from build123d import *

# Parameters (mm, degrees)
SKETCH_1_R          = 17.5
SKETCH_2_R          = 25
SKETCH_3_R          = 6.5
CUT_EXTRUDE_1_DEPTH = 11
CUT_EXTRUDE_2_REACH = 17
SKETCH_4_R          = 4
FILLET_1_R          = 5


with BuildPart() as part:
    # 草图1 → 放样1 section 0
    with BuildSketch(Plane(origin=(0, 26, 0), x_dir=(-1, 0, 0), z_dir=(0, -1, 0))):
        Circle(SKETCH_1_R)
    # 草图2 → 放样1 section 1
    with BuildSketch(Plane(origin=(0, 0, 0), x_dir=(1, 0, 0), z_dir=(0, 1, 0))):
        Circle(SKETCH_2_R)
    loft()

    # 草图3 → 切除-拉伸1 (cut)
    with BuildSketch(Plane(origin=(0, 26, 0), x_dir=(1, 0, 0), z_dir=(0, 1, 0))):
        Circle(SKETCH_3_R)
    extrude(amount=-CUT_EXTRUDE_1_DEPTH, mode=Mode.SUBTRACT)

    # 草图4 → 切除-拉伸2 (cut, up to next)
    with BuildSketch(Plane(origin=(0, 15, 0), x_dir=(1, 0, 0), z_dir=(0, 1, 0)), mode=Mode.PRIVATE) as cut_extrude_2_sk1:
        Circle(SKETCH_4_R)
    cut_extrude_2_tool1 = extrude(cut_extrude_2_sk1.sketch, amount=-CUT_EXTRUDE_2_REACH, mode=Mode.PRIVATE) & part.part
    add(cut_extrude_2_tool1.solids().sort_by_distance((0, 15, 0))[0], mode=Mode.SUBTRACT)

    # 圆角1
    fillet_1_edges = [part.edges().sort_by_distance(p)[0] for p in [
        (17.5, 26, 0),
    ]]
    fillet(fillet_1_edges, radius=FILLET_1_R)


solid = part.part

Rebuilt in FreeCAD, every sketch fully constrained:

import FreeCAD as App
import Part
import Sketcher


def edges_at(feature, points):
    """Names of the edges that pass closest to the given points."""
    edges = feature.Shape.Edges
    near = lambda p: min(range(len(edges)), key=lambda i: edges[i].distToShape(Part.Vertex(*p))[0])
    return sorted({f"Edge{near(p) + 1}" for p in points})

doc = App.newDocument("Part")
params = doc.addObject("Spreadsheet::Sheet", "Params")
for row, (alias, value) in enumerate([
    ("sketch1_diameter", "35 mm"),
    ("sketch2_diameter", "50 mm"),
    ("sketch3_diameter", "13 mm"),
    ("pocket1_length", "11 mm"),
    ("sketch4_diameter", "8 mm"),
    ("fillet_radius", "5 mm"),
], start=1):
    params.set(f"A{row}", alias)
    params.set(f"B{row}", "=" + value)
    params.setAlias(f"B{row}", alias)

body = doc.addObject("PartDesign::Body", "Body")

# Sketch on XZ plane
sketch1 = body.newObject("Sketcher::SketchObject", "Sketch")
sketch1.AttachmentSupport = (doc.getObject("XZ_Plane"), [""])
sketch1.MapMode = "FlatFace"
sketch1.AttachmentOffset = App.Placement(App.Vector(0, 0, -26), App.Rotation())
sketch1.addGeometry(Part.Circle(App.Vector(0, 0, 0), App.Vector(0, 0, 1), 18), False)
sketch1.addConstraint(Sketcher.Constraint("Coincident", 0, 3, -1, 1))
sketch1.addConstraint(Sketcher.Constraint("Diameter", 0, 35.0))
sketch1.setExpression("Constraints[1]", "Params.sketch1_diameter")

# Sketch on XZ plane
sketch2 = body.newObject("Sketcher::SketchObject", "Sketch001")
sketch2.AttachmentSupport = (doc.getObject("XZ_Plane"), [""])
sketch2.MapMode = "FlatFace"
sketch2.addGeometry(Part.Circle(App.Vector(0, 0, 0), App.Vector(0, 0, 1), 25), False)
sketch2.addConstraint(Sketcher.Constraint("Coincident", 0, 3, -1, 1))
sketch2.addConstraint(Sketcher.Constraint("Diameter", 0, 50.0))
sketch2.setExpression("Constraints[1]", "Params.sketch2_diameter")

additiveloft = body.newObject("PartDesign::AdditiveLoft", "AdditiveLoft")
additiveloft.Profile = sketch1
additiveloft.Sections = [sketch2]

# Sketch on XZ plane
sketch3 = body.newObject("Sketcher::SketchObject", "Sketch002")
sketch3.AttachmentSupport = (doc.getObject("XZ_Plane"), [""])
sketch3.MapMode = "FlatFace"
sketch3.AttachmentOffset = App.Placement(App.Vector(0, 0, -26), App.Rotation())
sketch3.addGeometry(Part.Circle(App.Vector(0, 0, 0), App.Vector(0, 0, 1), 6), False)
sketch3.addConstraint(Sketcher.Constraint("Coincident", 0, 3, -1, 1))
sketch3.addConstraint(Sketcher.Constraint("Diameter", 0, 13.0))
sketch3.setExpression("Constraints[1]", "Params.sketch3_diameter")
pocket1 = body.newObject("PartDesign::Pocket", "Pocket")
pocket1.Profile = sketch3
pocket1.setExpression("Length", "Params.pocket1_length")
pocket1.Reversed = True

# Sketch on XZ plane
sketch4 = body.newObject("Sketcher::SketchObject", "Sketch003")
sketch4.AttachmentSupport = (doc.getObject("XZ_Plane"), [""])
sketch4.MapMode = "FlatFace"
sketch4.AttachmentOffset = App.Placement(App.Vector(0, 0, -15), App.Rotation())
sketch4.addGeometry(Part.Circle(App.Vector(0, 0, 0), App.Vector(0, 0, 1), 4), False)
sketch4.addConstraint(Sketcher.Constraint("Coincident", 0, 3, -1, 1))
sketch4.addConstraint(Sketcher.Constraint("Diameter", 0, 8.0))
sketch4.setExpression("Constraints[1]", "Params.sketch4_diameter")
pocket2 = body.newObject("PartDesign::Pocket", "Pocket001")
pocket2.Profile = sketch4
pocket2.Type = "UpToFirst"
pocket2.Reversed = True
doc.recompute()

fillet = body.newObject("PartDesign::Fillet", "Fillet")
fillet.Base = (pocket2, edges_at(pocket2, [(17.5, 26, 0)]))
fillet.setExpression("Radius", "Params.fillet_radius")

doc.recompute()
